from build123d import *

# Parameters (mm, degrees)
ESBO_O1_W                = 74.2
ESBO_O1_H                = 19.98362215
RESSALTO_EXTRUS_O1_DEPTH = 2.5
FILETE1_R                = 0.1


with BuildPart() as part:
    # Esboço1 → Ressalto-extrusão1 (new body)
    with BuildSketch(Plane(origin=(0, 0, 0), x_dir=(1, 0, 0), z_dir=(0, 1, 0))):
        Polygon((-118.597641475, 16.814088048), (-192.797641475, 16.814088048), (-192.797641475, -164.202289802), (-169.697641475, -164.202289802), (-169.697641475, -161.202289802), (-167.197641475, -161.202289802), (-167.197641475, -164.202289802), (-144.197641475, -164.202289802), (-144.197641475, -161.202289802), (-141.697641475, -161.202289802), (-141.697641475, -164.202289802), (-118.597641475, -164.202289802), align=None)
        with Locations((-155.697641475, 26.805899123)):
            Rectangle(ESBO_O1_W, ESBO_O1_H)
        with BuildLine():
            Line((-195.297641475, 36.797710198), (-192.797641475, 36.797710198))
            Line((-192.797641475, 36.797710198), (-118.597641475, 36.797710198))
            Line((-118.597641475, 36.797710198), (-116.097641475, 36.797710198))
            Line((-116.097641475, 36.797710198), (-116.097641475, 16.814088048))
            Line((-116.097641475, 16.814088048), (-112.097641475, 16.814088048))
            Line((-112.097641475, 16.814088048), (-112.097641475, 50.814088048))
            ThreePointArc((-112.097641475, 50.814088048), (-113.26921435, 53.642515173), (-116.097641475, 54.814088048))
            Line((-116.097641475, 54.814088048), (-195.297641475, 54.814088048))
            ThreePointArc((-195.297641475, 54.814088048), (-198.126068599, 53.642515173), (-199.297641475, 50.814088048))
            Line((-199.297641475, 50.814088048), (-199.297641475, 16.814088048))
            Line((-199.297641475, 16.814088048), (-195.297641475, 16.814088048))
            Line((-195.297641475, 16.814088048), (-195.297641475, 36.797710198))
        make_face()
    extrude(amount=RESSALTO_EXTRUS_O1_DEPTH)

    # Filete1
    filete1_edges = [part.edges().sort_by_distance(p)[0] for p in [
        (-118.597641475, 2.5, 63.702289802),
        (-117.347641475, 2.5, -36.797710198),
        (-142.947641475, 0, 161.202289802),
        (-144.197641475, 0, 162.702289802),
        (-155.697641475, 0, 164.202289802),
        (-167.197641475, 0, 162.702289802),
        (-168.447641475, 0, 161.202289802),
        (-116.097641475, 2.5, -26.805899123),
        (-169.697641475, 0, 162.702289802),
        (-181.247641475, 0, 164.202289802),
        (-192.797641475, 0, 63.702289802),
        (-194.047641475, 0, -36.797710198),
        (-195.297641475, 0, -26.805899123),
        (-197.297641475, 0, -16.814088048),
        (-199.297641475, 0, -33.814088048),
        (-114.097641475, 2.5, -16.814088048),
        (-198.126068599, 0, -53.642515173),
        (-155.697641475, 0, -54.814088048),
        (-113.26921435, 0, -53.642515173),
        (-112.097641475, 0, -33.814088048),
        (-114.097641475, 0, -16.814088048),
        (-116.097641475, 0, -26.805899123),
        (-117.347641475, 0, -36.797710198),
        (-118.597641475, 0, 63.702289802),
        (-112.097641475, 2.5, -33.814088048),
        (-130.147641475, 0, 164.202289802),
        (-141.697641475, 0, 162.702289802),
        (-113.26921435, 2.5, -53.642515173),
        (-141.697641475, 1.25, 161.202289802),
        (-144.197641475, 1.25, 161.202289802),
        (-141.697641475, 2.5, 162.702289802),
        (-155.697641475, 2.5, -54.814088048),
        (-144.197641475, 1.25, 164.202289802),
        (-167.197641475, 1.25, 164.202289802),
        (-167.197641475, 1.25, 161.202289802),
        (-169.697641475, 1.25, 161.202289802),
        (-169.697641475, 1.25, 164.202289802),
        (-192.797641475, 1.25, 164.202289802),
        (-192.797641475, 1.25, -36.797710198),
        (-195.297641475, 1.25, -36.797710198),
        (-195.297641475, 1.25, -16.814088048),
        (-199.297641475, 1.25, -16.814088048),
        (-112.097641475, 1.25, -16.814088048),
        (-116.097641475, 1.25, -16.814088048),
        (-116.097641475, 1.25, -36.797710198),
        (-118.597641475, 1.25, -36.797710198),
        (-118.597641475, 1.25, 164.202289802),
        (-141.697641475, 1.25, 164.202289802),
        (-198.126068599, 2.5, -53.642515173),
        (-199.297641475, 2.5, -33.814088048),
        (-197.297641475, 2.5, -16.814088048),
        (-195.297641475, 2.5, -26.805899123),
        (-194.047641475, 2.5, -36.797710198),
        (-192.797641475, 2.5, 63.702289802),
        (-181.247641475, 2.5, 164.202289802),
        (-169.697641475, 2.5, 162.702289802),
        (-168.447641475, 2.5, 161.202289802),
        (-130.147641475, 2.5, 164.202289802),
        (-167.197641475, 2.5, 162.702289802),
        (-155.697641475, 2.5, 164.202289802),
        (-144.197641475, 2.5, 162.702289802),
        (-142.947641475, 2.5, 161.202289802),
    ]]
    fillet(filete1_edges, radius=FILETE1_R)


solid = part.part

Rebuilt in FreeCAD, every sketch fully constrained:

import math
import FreeCAD as App
import Part
import Sketcher

doc = App.newDocument("Part")
body = doc.addObject("PartDesign::Body", "Body")

# Sketch on XZ plane
sketch1 = body.newObject("Sketcher::SketchObject", "Sketch")
sketch1.AttachmentSupport = (doc.getObject("XZ_Plane"), [""])
sketch1.MapMode = "FlatFace"
sketch1.addGeometry([
    Part.LineSegment(App.Vector(-192.8, 164.2, 0), App.Vector(-169.7, 164.2, 0)),  # 0
    Part.LineSegment(App.Vector(-169.7, 164.2, 0), App.Vector(-169.7, 161.2, 0)),  # 1
    Part.LineSegment(App.Vector(-169.7, 161.2, 0), App.Vector(-167.2, 161.2, 0)),  # 2
    Part.LineSegment(App.Vector(-167.2, 161.2, 0), App.Vector(-167.2, 164.2, 0)),  # 3
    Part.LineSegment(App.Vector(-167.2, 164.2, 0), App.Vector(-144.2, 164.2, 0)),  # 4
    Part.LineSegment(App.Vector(-144.2, 164.2, 0), App.Vector(-144.2, 161.2, 0)),  # 5
    Part.LineSegment(App.Vector(-144.2, 161.2, 0), App.Vector(-141.7, 161.2, 0)),  # 6
    Part.LineSegment(App.Vector(-141.7, 161.2, 0), App.Vector(-141.7, 164.2, 0)),  # 7
    Part.LineSegment(App.Vector(-141.7, 164.2, 0), App.Vector(-118.6, 164.2, 0)),  # 8
    Part.LineSegment(App.Vector(-118.6, 164.2, 0), App.Vector(-118.6, -36.8, 0)),  # 9
    Part.LineSegment(App.Vector(-118.6, -36.8, 0), App.Vector(-116.1, -36.8, 0)),  # 10
    Part.LineSegment(App.Vector(-116.1, -36.8, 0), App.Vector(-116.1, -16.8, 0)),  # 11
    Part.LineSegment(App.Vector(-116.1, -16.8, 0), App.Vector(-112.1, -16.8, 0)),  # 12
    Part.LineSegment(App.Vector(-112.1, -16.8, 0), App.Vector(-112.1, -50.8, 0)),  # 13
    Part.ArcOfCircle(Part.Circle(App.Vector(-116.1, -50.8, 0), App.Vector(0, 0, 1), 4), math.radians(-90), math.radians(0)),  # 14
    Part.LineSegment(App.Vector(-116.1, -54.8, 0), App.Vector(-195.3, -54.8, 0)),  # 15
    Part.ArcOfCircle(Part.Circle(App.Vector(-195.3, -50.8, 0), App.Vector(0, 0, 1), 4), math.radians(-180), math.radians(-90)),  # 16
    Part.LineSegment(App.Vector(-199.3, -50.8, 0), App.Vector(-199.3, -16.8, 0)),  # 17
    Part.LineSegment(App.Vector(-199.3, -16.8, 0), App.Vector(-195.3, -16.8, 0)),  # 18
    Part.LineSegment(App.Vector(-195.3, -16.8, 0), App.Vector(-195.3, -36.8, 0)),  # 19
    Part.LineSegment(App.Vector(-195.3, -36.8, 0), App.Vector(-192.8, -36.8, 0)),  # 20
    Part.LineSegment(App.Vector(-192.8, -36.8, 0), App.Vector(-192.8, 164.2, 0)),  # 21
], False)
sketch1.addConstraint([
    Sketcher.Constraint("Coincident", 0, 2, 1, 1),
    Sketcher.Constraint("Coincident", 1, 2, 2, 1),
    Sketcher.Constraint("Coincident", 2, 2, 3, 1),
    Sketcher.Constraint("Coincident", 3, 2, 4, 1),
    Sketcher.Constraint("Coincident", 4, 2, 5, 1),
    Sketcher.Constraint("Coincident", 5, 2, 6, 1),
    Sketcher.Constraint("Coincident", 6, 2, 7, 1),
    Sketcher.Constraint("Coincident", 7, 2, 8, 1),
    Sketcher.Constraint("Coincident", 8, 2, 9, 1),
    Sketcher.Constraint("Coincident", 9, 2, 10, 1),
    Sketcher.Constraint("Coincident", 10, 2, 11, 1),
    Sketcher.Constraint("Coincident", 11, 2, 12, 1),
    Sketcher.Constraint("Coincident", 12, 2, 13, 1),
    Sketcher.Constraint("Tangent", 13, 2, 14, 2),
    Sketcher.Constraint("Tangent", 14, 1, 15, 1),
    Sketcher.Constraint("Tangent", 15, 2, 16, 2),
    Sketcher.Constraint("Tangent", 16, 1, 17, 1),
    Sketcher.Constraint("Coincident", 17, 2, 18, 1),
    Sketcher.Constraint("Coincident", 18, 2, 19, 1),
    Sketcher.Constraint("Coincident", 19, 2, 20, 1),
    Sketcher.Constraint("Coincident", 20, 2, 21, 1),
    Sketcher.Constraint("Coincident", 21, 2, 0, 1),
    Sketcher.Constraint("Horizontal", 0),
    Sketcher.Constraint("Vertical", 1),
    Sketcher.Constraint("Horizontal", 2),
    Sketcher.Constraint("Vertical", 3),
    Sketcher.Constraint("Horizontal", 4),
    Sketcher.Constraint("Vertical", 5),
    Sketcher.Constraint("Horizontal", 6),
    Sketcher.Constraint("Vertical", 7),
    Sketcher.Constraint("Horizontal", 8),
    Sketcher.Constraint("Vertical", 9),
    Sketcher.Constraint("Horizontal", 10),
    Sketcher.Constraint("Vertical", 11),
    Sketcher.Constraint("Horizontal", 12),
    Sketcher.Constraint("Vertical", 13),
    Sketcher.Constraint("Horizontal", 15),
    Sketcher.Constraint("Vertical", 17),
    Sketcher.Constraint("Horizontal", 18),
    Sketcher.Constraint("Vertical", 19),
    Sketcher.Constraint("Horizontal", 20),
    Sketcher.Constraint("Vertical", 21),
    Sketcher.Constraint("Equal", 14, 16),
    Sketcher.Constraint("Horizontal", 0, 2, 3, 2),
    Sketcher.Constraint("Horizontal", 2, 2, 5, 2),
    Sketcher.Constraint("Horizontal", 4, 2, 7, 2),
    Sketcher.Constraint("Horizontal", 12, 2, 17, 2),
    Sketcher.Constraint("Horizontal", 10, 2, 19, 2),
    Sketcher.Constraint("Vertical", 14, 3, 10, 2),
    Sketcher.Constraint("Vertical", 15, 2, 18, 2),
    Sketcher.Constraint("Equal", 2, 6),
    Sketcher.Constraint("Equal", 0, 8),
    Sketcher.Constraint("Equal", 6, 10),
    Sketcher.Constraint("Equal", 10, 20),
    Sketcher.Constraint("Radius", 14, 4.0),
    Sketcher.Constraint("DistanceX", 4, 1, 4, 2, 23.0),
    Sketcher.Constraint("DistanceY", 1, 2, 1, 1, 3.0),
    Sketcher.Constraint("DistanceY", 9, 2, 9, 1, 201.0),
    Sketcher.Constraint("DistanceY", 13, 2, 13, 1, 34.0),
    Sketcher.Constraint("DistanceX", 0, 1, 0, 2, 23.1),
    Sketcher.Constraint("DistanceX", 2, 1, 2, 2, 2.5),
    Sketcher.Constraint("DistanceY", 11, 1, 11, 2, 19.983622),
    Sketcher.Constraint("DistanceX", 14, 3, -1, 1, 116.097641),
    Sketcher.Constraint("DistanceY", 14, 3, -1, 1, 50.814088),
])
pad1 = body.newObject("PartDesign::Pad", "Pad")
pad1.Profile = sketch1
pad1.Length = 2.5
pad1.Reversed = True
doc.recompute()

fillet = body.newObject("PartDesign::Fillet", "Fillet")
fillet.Base = (pad1, ["Edge1"])
fillet.UseAllEdges = True
fillet.Radius = 0.1

doc.recompute()
